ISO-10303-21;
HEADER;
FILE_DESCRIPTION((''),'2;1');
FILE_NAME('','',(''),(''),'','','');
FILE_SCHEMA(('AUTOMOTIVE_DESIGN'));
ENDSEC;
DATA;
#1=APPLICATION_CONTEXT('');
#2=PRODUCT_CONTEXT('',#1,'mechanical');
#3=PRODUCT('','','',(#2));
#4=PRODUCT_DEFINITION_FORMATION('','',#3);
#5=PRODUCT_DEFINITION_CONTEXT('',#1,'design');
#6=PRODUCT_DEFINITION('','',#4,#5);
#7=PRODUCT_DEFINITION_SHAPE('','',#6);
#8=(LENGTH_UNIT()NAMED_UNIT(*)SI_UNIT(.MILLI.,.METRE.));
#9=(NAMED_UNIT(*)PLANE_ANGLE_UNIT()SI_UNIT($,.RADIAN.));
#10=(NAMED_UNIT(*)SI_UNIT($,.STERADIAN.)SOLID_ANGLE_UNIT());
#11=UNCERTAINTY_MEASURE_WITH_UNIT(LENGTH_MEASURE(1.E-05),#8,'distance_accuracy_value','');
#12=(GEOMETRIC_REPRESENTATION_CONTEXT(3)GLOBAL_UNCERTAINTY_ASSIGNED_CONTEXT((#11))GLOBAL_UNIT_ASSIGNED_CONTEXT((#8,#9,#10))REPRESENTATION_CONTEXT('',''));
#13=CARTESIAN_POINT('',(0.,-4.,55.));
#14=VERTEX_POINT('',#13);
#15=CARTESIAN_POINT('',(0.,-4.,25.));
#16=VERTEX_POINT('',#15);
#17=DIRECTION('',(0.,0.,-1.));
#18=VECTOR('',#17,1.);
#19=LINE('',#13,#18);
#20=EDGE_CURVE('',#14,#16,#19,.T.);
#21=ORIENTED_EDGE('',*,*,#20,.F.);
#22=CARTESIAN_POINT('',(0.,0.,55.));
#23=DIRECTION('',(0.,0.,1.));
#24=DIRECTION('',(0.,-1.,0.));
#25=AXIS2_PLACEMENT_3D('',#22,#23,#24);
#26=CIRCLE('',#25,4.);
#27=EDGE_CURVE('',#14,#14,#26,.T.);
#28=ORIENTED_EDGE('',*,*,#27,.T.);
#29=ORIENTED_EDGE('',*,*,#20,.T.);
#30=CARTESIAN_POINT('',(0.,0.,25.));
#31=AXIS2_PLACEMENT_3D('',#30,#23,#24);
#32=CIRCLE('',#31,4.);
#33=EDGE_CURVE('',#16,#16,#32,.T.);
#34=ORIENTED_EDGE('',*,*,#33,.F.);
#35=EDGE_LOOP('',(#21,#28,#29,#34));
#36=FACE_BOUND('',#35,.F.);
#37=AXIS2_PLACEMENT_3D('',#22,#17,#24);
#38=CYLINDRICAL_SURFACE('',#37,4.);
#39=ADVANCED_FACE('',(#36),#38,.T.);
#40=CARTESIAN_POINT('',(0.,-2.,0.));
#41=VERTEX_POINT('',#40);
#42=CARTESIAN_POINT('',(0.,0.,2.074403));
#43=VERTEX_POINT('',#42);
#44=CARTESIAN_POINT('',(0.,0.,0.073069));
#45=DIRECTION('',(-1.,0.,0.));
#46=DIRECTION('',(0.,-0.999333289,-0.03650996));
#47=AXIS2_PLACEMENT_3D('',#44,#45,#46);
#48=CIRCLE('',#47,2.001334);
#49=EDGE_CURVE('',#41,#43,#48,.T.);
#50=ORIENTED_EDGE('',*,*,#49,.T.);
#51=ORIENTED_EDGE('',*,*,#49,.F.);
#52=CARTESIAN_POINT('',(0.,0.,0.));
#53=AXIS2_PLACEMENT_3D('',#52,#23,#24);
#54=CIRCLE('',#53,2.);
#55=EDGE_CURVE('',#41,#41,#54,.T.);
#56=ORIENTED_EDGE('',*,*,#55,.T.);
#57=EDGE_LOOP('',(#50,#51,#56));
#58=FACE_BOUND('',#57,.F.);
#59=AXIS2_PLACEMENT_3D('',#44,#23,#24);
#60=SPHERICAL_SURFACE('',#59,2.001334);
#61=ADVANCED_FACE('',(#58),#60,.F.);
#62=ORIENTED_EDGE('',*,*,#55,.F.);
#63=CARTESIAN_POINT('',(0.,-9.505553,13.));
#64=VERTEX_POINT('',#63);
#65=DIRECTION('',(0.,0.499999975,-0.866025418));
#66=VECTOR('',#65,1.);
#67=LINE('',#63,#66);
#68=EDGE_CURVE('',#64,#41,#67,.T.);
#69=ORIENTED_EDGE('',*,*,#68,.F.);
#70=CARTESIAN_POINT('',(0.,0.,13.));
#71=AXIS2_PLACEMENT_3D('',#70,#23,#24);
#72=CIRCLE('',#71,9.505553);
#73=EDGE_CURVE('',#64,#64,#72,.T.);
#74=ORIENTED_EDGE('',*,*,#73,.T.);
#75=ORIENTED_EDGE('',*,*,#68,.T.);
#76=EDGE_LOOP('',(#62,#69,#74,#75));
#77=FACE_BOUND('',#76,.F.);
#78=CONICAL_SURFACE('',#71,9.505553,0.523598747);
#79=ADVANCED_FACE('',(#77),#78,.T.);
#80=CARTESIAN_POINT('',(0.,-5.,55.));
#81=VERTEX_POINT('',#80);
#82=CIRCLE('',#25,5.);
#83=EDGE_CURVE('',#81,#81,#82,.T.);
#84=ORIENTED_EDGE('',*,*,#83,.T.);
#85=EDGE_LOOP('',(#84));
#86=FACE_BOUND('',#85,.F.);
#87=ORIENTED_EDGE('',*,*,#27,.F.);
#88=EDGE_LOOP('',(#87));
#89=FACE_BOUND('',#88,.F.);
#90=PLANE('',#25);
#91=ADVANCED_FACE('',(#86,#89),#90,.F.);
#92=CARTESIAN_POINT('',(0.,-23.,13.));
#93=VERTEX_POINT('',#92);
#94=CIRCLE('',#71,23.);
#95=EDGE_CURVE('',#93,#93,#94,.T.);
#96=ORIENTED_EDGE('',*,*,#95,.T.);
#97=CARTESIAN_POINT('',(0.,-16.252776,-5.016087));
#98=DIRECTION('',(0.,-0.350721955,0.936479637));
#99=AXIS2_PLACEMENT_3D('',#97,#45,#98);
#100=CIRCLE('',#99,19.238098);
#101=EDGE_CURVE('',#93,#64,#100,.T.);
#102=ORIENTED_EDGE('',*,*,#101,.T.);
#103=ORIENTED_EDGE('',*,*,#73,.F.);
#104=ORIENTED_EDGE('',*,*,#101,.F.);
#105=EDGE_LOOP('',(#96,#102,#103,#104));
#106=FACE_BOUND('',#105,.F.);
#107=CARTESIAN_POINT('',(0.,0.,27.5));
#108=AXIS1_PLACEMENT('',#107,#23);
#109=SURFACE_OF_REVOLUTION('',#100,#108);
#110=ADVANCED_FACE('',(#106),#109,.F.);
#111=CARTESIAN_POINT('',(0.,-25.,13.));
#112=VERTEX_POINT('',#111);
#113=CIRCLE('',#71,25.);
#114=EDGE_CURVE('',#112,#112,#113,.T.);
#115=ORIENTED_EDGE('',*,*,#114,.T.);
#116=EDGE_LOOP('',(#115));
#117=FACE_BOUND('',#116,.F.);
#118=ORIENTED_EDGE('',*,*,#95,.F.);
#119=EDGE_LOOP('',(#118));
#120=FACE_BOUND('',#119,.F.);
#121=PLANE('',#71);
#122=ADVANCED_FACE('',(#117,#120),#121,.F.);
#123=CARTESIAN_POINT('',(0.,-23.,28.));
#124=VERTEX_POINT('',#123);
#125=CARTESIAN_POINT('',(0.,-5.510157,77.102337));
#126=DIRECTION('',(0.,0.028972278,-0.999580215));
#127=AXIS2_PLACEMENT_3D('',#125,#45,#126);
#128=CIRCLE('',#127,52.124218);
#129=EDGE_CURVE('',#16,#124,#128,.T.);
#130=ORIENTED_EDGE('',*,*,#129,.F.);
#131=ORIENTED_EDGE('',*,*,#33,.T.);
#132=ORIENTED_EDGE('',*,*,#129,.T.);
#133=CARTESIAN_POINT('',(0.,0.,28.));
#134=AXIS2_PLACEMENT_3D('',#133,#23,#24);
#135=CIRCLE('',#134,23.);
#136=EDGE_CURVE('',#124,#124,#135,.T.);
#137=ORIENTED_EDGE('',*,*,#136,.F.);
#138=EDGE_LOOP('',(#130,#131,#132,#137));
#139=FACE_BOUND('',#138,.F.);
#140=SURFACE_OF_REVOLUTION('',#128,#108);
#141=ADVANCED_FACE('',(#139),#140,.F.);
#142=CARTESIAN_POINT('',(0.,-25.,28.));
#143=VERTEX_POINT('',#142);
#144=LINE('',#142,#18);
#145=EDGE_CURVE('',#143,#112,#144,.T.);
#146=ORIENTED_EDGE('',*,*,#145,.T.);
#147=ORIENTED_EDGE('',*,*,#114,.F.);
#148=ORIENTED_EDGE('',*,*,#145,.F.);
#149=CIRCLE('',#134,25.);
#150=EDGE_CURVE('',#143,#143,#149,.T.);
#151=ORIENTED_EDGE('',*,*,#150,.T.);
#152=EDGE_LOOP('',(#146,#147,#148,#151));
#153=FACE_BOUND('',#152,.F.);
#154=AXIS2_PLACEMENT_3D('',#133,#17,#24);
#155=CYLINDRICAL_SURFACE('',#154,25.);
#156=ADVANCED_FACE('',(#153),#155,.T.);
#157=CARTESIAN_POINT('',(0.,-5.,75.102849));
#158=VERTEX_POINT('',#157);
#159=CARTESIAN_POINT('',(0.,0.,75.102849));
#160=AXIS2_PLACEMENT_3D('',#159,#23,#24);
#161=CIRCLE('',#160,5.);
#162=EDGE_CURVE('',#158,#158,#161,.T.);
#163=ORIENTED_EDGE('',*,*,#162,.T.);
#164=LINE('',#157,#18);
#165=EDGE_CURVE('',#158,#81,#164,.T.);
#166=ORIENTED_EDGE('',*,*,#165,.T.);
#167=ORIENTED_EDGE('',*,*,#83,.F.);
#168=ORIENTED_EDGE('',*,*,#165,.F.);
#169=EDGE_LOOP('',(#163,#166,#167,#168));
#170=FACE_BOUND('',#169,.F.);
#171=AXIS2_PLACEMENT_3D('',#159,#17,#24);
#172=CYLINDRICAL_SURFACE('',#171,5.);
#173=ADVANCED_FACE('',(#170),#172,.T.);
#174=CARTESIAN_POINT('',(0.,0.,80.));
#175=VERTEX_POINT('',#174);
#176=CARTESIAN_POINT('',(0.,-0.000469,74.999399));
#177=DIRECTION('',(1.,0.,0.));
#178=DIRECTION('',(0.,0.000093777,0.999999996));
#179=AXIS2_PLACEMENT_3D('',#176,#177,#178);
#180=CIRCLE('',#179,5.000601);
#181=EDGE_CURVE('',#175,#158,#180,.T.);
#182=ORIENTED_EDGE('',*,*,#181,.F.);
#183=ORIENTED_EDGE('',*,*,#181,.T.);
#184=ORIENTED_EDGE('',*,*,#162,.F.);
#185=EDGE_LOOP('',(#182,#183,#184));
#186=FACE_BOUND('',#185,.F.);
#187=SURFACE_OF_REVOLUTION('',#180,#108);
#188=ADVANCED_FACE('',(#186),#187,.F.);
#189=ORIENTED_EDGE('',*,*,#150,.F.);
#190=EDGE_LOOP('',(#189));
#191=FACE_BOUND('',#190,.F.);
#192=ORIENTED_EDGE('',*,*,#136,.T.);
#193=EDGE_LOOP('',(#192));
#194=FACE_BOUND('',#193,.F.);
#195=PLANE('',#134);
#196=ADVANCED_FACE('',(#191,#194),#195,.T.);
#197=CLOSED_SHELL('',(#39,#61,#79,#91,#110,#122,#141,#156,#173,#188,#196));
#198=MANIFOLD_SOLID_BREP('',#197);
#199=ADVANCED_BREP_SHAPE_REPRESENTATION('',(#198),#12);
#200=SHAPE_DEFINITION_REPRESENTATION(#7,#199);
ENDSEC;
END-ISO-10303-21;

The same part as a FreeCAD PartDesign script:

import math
import FreeCAD as App
import Part
import Sketcher
Q = App.Units.Quantity

doc = App.newDocument("Part")
body = doc.addObject("PartDesign::Body", "Body")

# Sketch on YZ plane
sketch1 = body.newObject("Sketcher::SketchObject", "Sketch")
sketch1.AttachmentSupport = (doc.getObject("YZ_Plane"), [""])
sketch1.MapMode = "FlatFace"
sketch1.addGeometry([
    Part.ArcOfCircle(Part.Circle(App.Vector(0, 0.1, 0), App.Vector(0, 0, 1), 2), math.radians(90), math.radians(182)),  # 0
    Part.LineSegment(App.Vector(0, 2.1, 0), App.Vector(0, 80, 0)),  # 1
    Part.ArcOfCircle(Part.Circle(App.Vector(0, 75, 0), App.Vector(0, 0, 1), 5), math.radians(90), math.radians(179)),  # 2
    Part.LineSegment(App.Vector(-5, 75.1, 0), App.Vector(-5, 55, 0)),  # 3
    Part.LineSegment(App.Vector(-5, 55, 0), App.Vector(-4, 55, 0)),  # 4
    Part.LineSegment(App.Vector(-4, 55, 0), App.Vector(-4, 25, 0)),  # 5
    Part.ArcOfCircle(Part.Circle(App.Vector(-5.5, 77.1, 0), App.Vector(0, 0, 1), 52.1), math.radians(-110), math.radians(-88)),  # 6
    Part.LineSegment(App.Vector(-23, 28, 0), App.Vector(-25, 28, 0)),  # 7
    Part.LineSegment(App.Vector(-25, 28, 0), App.Vector(-25, 13, 0)),  # 8
    Part.LineSegment(App.Vector(-25, 13, 0), App.Vector(-23, 13, 0)),  # 9
    Part.ArcOfCircle(Part.Circle(App.Vector(-16.3, -5, 0), App.Vector(0, 0, 1), 19.2), math.radians(69), math.radians(111)),  # 10
    Part.LineSegment(App.Vector(-9.5, 13, 0), App.Vector(-2, 0, 0)),  # 11
], False)
sketch1.addConstraint([
    Sketcher.Constraint("Coincident", 0, 1, 1, 1),
    Sketcher.Constraint("Coincident", 1, 2, 2, 1),
    Sketcher.Constraint("Coincident", 2, 2, 3, 1),
    Sketcher.Constraint("Coincident", 3, 2, 4, 1),
    Sketcher.Constraint("Coincident", 4, 2, 5, 1),
    Sketcher.Constraint("Coincident", 5, 2, 6, 2),
    Sketcher.Constraint("Coincident", 6, 1, 7, 1),
    Sketcher.Constraint("Coincident", 7, 2, 8, 1),
    Sketcher.Constraint("Coincident", 8, 2, 9, 1),
    Sketcher.Constraint("Coincident", 9, 2, 10, 2),
    Sketcher.Constraint("Coincident", 10, 1, 11, 1),
    Sketcher.Constraint("Coincident", 11, 2, 0, 2),
    Sketcher.Constraint("Vertical", 1),
    Sketcher.Constraint("Vertical", 3),
    Sketcher.Constraint("Horizontal", 4),
    Sketcher.Constraint("Vertical", 5),
    Sketcher.Constraint("Horizontal", 7),
    Sketcher.Constraint("Vertical", 8),
    Sketcher.Constraint("Horizontal", 9),
    Sketcher.Constraint("PointOnObject", 0, 3, -2),
    Sketcher.Constraint("PointOnObject", 0, 1, -2),
    Sketcher.Constraint("PointOnObject", 11, 2, -1),
    Sketcher.Constraint("Horizontal", 9, 2, 10, 1),
    Sketcher.Constraint("Vertical", 6, 1, 9, 2),
    Sketcher.Constraint("DistanceX", 4, 1, 4, 2, 1.0),
    Sketcher.Constraint("DistanceX", 7, 2, 7, 1, 2.0),
    Sketcher.Constraint("DistanceY", 5, 2, 5, 1, 30.0),
    Sketcher.Constraint("DistanceY", 8, 2, 8, 1, 15.0),
    Sketcher.Constraint("Angle", 11, Q("-60.000002 deg")),
    Sketcher.Constraint("DistanceY", -1, 1, 1, 2, 80.0),
    Sketcher.Constraint("DistanceX", 2, 2, -1, 1, 5.0),
    Sketcher.Constraint("DistanceY", -1, 1, 3, 2, 55.0),
    Sketcher.Constraint("DistanceX", 6, 1, -1, 1, 23.0),
    Sketcher.Constraint("DistanceY", -1, 1, 6, 1, 28.0),
    Sketcher.Constraint("DistanceX", 11, 2, -1, 1, 2.0),
    Sketcher.Constraint("Radius", 2, 5.000601),
    Sketcher.Constraint("Radius", 10, 19.238098),
    Sketcher.Constraint("Radius", 0, 2.001334),
    Sketcher.Constraint("Radius", 6, 52.124218),
    Sketcher.Constraint("DistanceY", 3, 2, 3, 1, 20.102849),
])
revolution = body.newObject("PartDesign::Revolution", "Revolution")
revolution.Profile = sketch1
revolution.ReferenceAxis = (sketch1, ["V_Axis"])
revolution.Angle = 360

doc.recompute()
